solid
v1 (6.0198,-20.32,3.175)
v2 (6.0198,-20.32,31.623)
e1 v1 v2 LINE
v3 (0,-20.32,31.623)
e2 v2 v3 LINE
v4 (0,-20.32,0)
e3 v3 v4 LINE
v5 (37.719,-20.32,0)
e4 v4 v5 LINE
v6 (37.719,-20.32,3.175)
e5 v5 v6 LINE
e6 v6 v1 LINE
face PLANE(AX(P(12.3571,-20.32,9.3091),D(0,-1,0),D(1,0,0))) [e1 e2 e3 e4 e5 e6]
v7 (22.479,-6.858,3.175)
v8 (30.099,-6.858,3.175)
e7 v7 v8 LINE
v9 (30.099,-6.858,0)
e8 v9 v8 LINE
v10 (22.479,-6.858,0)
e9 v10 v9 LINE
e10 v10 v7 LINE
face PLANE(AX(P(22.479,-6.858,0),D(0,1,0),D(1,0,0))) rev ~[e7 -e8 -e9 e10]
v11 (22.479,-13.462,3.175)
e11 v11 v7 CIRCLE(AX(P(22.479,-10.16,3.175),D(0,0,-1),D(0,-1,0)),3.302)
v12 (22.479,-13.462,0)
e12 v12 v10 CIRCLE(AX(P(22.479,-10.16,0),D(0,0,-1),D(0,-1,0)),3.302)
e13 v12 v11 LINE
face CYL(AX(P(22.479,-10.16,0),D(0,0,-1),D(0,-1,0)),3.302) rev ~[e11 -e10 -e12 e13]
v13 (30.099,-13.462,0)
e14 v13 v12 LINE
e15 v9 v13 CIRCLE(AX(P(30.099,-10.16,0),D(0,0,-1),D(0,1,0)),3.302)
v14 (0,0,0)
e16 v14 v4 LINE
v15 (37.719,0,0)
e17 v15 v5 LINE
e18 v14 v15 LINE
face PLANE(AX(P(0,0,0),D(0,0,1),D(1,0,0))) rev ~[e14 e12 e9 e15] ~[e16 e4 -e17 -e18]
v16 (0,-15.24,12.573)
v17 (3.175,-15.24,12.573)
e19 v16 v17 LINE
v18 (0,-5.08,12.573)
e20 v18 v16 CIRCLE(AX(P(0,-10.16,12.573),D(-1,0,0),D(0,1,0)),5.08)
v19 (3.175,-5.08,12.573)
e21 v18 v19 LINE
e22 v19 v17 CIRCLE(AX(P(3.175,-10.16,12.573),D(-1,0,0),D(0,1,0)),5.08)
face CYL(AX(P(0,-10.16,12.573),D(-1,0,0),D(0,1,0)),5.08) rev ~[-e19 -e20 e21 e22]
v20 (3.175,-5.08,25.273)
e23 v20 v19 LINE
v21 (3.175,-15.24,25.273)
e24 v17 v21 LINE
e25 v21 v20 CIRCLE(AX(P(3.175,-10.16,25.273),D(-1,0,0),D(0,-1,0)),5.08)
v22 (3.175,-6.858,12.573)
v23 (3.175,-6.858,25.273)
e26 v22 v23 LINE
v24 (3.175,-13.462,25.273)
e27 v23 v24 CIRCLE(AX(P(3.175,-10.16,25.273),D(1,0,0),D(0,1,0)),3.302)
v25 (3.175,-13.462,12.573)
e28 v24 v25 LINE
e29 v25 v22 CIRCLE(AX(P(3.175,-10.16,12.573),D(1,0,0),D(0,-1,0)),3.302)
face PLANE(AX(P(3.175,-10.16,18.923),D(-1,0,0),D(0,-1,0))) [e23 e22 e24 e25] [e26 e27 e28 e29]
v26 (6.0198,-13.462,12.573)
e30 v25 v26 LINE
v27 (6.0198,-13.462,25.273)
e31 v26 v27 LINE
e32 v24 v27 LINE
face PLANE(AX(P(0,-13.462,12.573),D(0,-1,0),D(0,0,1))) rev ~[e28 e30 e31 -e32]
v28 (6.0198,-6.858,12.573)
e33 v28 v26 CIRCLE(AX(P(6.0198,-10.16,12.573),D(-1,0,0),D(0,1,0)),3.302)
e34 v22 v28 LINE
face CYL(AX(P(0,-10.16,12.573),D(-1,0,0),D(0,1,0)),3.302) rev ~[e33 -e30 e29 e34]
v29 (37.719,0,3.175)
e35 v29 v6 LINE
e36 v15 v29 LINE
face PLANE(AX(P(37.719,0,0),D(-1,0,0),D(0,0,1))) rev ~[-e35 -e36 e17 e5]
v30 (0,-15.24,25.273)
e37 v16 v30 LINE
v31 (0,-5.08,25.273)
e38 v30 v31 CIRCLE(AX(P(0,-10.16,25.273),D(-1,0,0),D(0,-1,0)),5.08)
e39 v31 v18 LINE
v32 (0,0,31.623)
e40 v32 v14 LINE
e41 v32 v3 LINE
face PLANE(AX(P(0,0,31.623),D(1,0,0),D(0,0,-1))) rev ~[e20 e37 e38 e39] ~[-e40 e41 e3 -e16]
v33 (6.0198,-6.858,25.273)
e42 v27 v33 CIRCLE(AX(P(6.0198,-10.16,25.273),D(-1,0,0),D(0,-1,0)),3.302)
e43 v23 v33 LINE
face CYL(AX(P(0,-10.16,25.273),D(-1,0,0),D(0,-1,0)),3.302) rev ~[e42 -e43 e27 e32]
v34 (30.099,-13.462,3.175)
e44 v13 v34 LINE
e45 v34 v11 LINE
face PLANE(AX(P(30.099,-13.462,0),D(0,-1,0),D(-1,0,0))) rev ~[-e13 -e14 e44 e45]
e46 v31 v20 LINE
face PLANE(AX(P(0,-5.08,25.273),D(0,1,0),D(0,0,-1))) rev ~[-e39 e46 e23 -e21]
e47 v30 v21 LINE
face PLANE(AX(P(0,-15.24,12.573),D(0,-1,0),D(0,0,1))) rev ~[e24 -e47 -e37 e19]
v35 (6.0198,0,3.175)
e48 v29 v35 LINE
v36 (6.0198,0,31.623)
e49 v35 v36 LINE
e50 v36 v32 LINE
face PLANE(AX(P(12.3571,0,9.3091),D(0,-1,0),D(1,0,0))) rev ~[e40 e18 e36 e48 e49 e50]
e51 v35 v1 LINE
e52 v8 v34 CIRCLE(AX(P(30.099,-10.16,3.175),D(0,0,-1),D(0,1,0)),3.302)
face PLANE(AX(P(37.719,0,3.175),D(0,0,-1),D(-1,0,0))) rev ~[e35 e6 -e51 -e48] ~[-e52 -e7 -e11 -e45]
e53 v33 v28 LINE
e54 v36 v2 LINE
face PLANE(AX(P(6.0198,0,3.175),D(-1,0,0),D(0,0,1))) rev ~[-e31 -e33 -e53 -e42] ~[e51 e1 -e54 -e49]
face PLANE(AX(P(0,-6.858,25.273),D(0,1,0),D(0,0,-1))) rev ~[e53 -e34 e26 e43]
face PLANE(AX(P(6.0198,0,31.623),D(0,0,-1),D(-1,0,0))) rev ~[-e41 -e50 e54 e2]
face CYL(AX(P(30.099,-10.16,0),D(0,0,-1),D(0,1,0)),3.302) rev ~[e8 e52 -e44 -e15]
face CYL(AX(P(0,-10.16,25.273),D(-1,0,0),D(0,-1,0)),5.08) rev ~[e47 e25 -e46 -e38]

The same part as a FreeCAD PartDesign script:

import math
import FreeCAD as App
import Part
import Sketcher

V = App.Vector
Q = App.Units.Quantity


def add_polygon(sketch, points):
    """Adds a closed chain of lines whose ends are joined by coincident constraints."""
    first, n = sketch.GeometryCount, len(points)
    for a, b in zip(points, points[1:] + points[:1]):
        sketch.addGeometry(Part.LineSegment(App.Vector(*a, 0), App.Vector(*b, 0)), False)
    for i in range(n):
        sketch.addConstraint(Sketcher.Constraint("Coincident", first + i, 2, first + (i + 1) % n, 1))

doc = App.newDocument("Part")
body = doc.addObject("PartDesign::Body", "Body")

# Sketch on XZ plane
sketch1 = body.newObject("Sketcher::SketchObject", "Sketch")
sketch1.AttachmentSupport = (doc.getObject("XZ_Plane"), [""])
sketch1.MapMode = "FlatFace"
add_polygon(sketch1, [(0, 31.623), (0, 0), (37.719, 0), (37.719, 3.175), (6.0198, 3.175), (6.0198, 31.623)])  # lines 0-5
sketch1.addConstraint([
    Sketcher.Constraint("Vertical", 0),
    Sketcher.Constraint("Horizontal", 1),
    Sketcher.Constraint("Vertical", 2),
    Sketcher.Constraint("Horizontal", 3),
    Sketcher.Constraint("Vertical", 4),
    Sketcher.Constraint("Horizontal", 5),
    Sketcher.Constraint("Coincident", 0, 2, -1, 1),
    Sketcher.Constraint("DistanceY", 4, 1, 4, 2, Q("1.12 in")),
    Sketcher.Constraint("DistanceX", 1, 1, 1, 2, Q("1.485 in")),
    Sketcher.Constraint("DistanceX", 3, 2, 3, 1, Q("1.248 in")),
    Sketcher.Constraint("DistanceY", 0, 2, 0, 1, Q("1.245 in")),
])
pad1 = body.newObject("PartDesign::Pad", "Pad")
pad1.Profile = sketch1
pad1.Length = Q("0.8 in")

# Sketch on XY plane
sketch2 = body.newObject("Sketcher::SketchObject", "Sketch001")
sketch2.AttachmentSupport = (doc.getObject("XY_Plane"), [""])
sketch2.MapMode = "FlatFace"
sketch2.addGeometry([
    Part.LineSegment(V(22.479, -6.858, 0), V(30.099, -6.858, 0)),
    Part.ArcOfCircle(Part.Circle(V(30.099, -10.16, 0), V(0, 0, 1), 3.302), math.radians(-90), math.radians(90)),
    Part.LineSegment(V(30.099, -13.462, 0), V(22.479, -13.462, 0)),
    Part.ArcOfCircle(Part.Circle(V(22.479, -10.16, 0), V(0, 0, 1), 3.302), math.radians(90), math.radians(270)),
], False)
sketch2.addConstraint([
    Sketcher.Constraint("Tangent", 0, 2, 1, 2),
    Sketcher.Constraint("Tangent", 1, 1, 2, 1),
    Sketcher.Constraint("Tangent", 2, 2, 3, 2),
    Sketcher.Constraint("Tangent", 3, 1, 0, 1),
    Sketcher.Constraint("Horizontal", 0),
    Sketcher.Constraint("Horizontal", 2),
    Sketcher.Constraint("Radius", 1, Q("0.13 in")),
    Sketcher.Constraint("DistanceX", 0, 1, 0, 2, Q("0.3 in")),
    Sketcher.Constraint("DistanceY", 1, 3, -1, 1, Q("0.4 in")),
    Sketcher.Constraint("DistanceX", -1, 1, 1, 3, Q("1.185 in")),
])
pocket1 = body.newObject("PartDesign::Pocket", "Pocket")
pocket1.Profile = sketch2
pocket1.Length = Q("0.6 in")
pocket1.Reversed = True

# Sketch on YZ plane
sketch3 = body.newObject("Sketcher::SketchObject", "Sketch002")
sketch3.AttachmentSupport = (doc.getObject("YZ_Plane"), [""])
sketch3.MapMode = "FlatFace"
sketch3.addGeometry([
    Part.LineSegment(V(-13.462, 12.573, 0), V(-13.462, 25.273, 0)),
    Part.ArcOfCircle(Part.Circle(V(-10.16, 25.273, 0), V(0, 0, 1), 3.302), math.radians(0), math.radians(180)),
    Part.LineSegment(V(-6.858, 25.273, 0), V(-6.858, 12.573, 0)),
    Part.ArcOfCircle(Part.Circle(V(-10.16, 12.573, 0), V(0, 0, 1), 3.302), math.radians(180), math.radians(360)),
], False)
sketch3.addConstraint([
    Sketcher.Constraint("Tangent", 0, 2, 1, 2),
    Sketcher.Constraint("Tangent", 1, 1, 2, 1),
    Sketcher.Constraint("Tangent", 2, 2, 3, 2),
    Sketcher.Constraint("Tangent", 3, 1, 0, 1),
    Sketcher.Constraint("Vertical", 0),
    Sketcher.Constraint("Vertical", 2),
    Sketcher.Constraint("Radius", 1, Q("0.13 in")),
    Sketcher.Constraint("DistanceY", 0, 1, 0, 2, Q("0.5 in")),
    Sketcher.Constraint("DistanceX", 1, 3, -1, 1, Q("0.4 in")),
    Sketcher.Constraint("DistanceY", -1, 1, 1, 3, Q("0.995 in")),
])
pocket2 = body.newObject("PartDesign::Pocket", "Pocket001")
pocket2.Profile = sketch3
pocket2.Length = Q("1 in")
pocket2.Reversed = True

# Sketch on YZ plane
sketch4 = body.newObject("Sketcher::SketchObject", "Sketch003")
sketch4.AttachmentSupport = (doc.getObject("YZ_Plane"), [""])
sketch4.MapMode = "FlatFace"
sketch4.addGeometry([
    Part.LineSegment(V(-15.24, 12.573, 0), V(-15.24, 25.273, 0)),  # 0
    Part.ArcOfCircle(Part.Circle(V(-10.16, 25.273, 0), V(0, 0, 1), 5.08), math.radians(0), math.radians(180)),  # 1
    Part.LineSegment(V(-5.08, 25.273, 0), V(-5.08, 12.573, 0)),  # 2
    Part.ArcOfCircle(Part.Circle(V(-10.16, 12.573, 0), V(0, 0, 1), 5.08), math.radians(180), math.radians(360)),  # 3
    Part.LineSegment(V(-6.858, 12.573, 0), V(-6.858, 25.273, 0)),  # 4
    Part.ArcOfCircle(Part.Circle(V(-10.16, 25.273, 0), V(0, 0, 1), 3.302), math.radians(0), math.radians(180)),  # 5
    Part.LineSegment(V(-13.462, 25.273, 0), V(-13.462, 12.573, 0)),  # 6
    Part.ArcOfCircle(Part.Circle(V(-10.16, 12.573, 0), V(0, 0, 1), 3.302), math.radians(180), math.radians(360)),  # 7
], False)
sketch4.addConstraint([
    Sketcher.Constraint("Tangent", 0, 2, 1, 2),
    Sketcher.Constraint("Tangent", 1, 1, 2, 1),
    Sketcher.Constraint("Tangent", 2, 2, 3, 2),
    Sketcher.Constraint("Tangent", 3, 1, 0, 1),
    Sketcher.Constraint("Tangent", 4, 2, 5, 1),
    Sketcher.Constraint("Tangent", 5, 2, 6, 1),
    Sketcher.Constraint("Tangent", 6, 2, 7, 1),
    Sketcher.Constraint("Tangent", 7, 2, 4, 1),
    Sketcher.Constraint("Vertical", 0),
    Sketcher.Constraint("Vertical", 2),
    Sketcher.Constraint("Vertical", 4),
    Sketcher.Constraint("Vertical", 6),
    Sketcher.Constraint("Coincident", 5, 3, 1, 3),
    Sketcher.Constraint("Horizontal", 7, 3, 2, 2),
    Sketcher.Constraint("Radius", 1, Q("0.2 in")),
    Sketcher.Constraint("Radius", 5, Q("0.13 in")),
    Sketcher.Constraint("DistanceY", 0, 1, 0, 2, Q("0.5 in")),
    Sketcher.Constraint("DistanceX", 1, 3, -1, 1, Q("0.4 in")),
    Sketcher.Constraint("DistanceY", -1, 1, 1, 3, Q("0.995 in")),
])
pocket3 = body.newObject("PartDesign::Pocket", "Pocket002")
pocket3.Profile = sketch4
pocket3.Length = Q("0.125 in")
pocket3.Reversed = True

doc.recompute()
